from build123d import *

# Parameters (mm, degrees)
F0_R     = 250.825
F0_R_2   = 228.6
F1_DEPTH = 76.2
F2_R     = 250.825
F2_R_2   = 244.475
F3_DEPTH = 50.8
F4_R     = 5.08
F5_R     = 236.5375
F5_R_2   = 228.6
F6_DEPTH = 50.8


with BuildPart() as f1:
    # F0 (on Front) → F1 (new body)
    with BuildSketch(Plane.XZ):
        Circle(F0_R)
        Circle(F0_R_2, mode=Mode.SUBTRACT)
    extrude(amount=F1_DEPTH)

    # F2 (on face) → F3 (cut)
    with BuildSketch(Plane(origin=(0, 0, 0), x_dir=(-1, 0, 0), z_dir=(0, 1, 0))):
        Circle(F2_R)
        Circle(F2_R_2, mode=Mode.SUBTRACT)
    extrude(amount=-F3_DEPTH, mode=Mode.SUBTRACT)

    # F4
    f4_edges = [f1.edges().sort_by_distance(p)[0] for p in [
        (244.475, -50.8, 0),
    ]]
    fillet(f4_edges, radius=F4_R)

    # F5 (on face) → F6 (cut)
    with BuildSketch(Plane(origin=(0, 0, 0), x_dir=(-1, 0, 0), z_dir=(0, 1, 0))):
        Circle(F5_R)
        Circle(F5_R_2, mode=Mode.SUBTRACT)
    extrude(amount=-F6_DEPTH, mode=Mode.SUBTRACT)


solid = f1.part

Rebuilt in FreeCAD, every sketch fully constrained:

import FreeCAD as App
import Part
import Sketcher
Q = App.Units.Quantity


def edges_at(feature, points):
    """Names of the edges that pass closest to the given points."""
    edges = feature.Shape.Edges
    near = lambda p: min(range(len(edges)), key=lambda i: edges[i].distToShape(Part.Vertex(*p))[0])
    return sorted({f"Edge{near(p) + 1}" for p in points})

doc = App.newDocument("Part")
body = doc.addObject("PartDesign::Body", "Body")

# Sketch on XZ plane
sketch1 = body.newObject("Sketcher::SketchObject", "Sketch")
sketch1.AttachmentSupport = (doc.getObject("XZ_Plane"), [""])
sketch1.MapMode = "FlatFace"
sketch1.addGeometry([
    Part.Circle(App.Vector(0, 0, 0), App.Vector(0, 0, 1), 251),
    Part.Circle(App.Vector(0, 0, 0), App.Vector(0, 0, 1), 229),
], False)
sketch1.addConstraint([
    Sketcher.Constraint("Coincident", 0, 3, -1, 1),
    Sketcher.Constraint("Coincident", 1, 3, -1, 1),
    Sketcher.Constraint("Diameter", 1, Q("18 in")),
    Sketcher.Constraint("Diameter", 0, Q("19.75 in")),
])
pad1 = body.newObject("PartDesign::Pad", "Pad")
pad1.Profile = sketch1
pad1.Length = Q("3 in")

# Sketch on XZ plane
sketch2 = body.newObject("Sketcher::SketchObject", "Sketch001")
sketch2.AttachmentSupport = (doc.getObject("XZ_Plane"), [""])
sketch2.MapMode = "FlatFace"
sketch2.addGeometry([
    Part.Circle(App.Vector(0, 0, 0), App.Vector(0, 0, 1), 251),
    Part.Circle(App.Vector(0, 0, 0), App.Vector(0, 0, 1), 244),
], False)
sketch2.addConstraint([
    Sketcher.Constraint("Coincident", 0, 3, -1, 1),
    Sketcher.Constraint("Coincident", 1, 3, -1, 1),
    Sketcher.Constraint("Diameter", 0, Q("19.75 in")),
    Sketcher.Constraint("Diameter", 1, Q("19.25 in")),
])
pocket1 = body.newObject("PartDesign::Pocket", "Pocket")
pocket1.Profile = sketch2
pocket1.Length = Q("2 in")
pocket1.Reversed = True
doc.recompute()

fillet = body.newObject("PartDesign::Fillet", "Fillet")
fillet.Base = (pocket1, edges_at(pocket1, [(244.475, -50.8, 0)]))
fillet.Radius = Q("0.2 in")

# Sketch on XZ plane
sketch3 = body.newObject("Sketcher::SketchObject", "Sketch002")
sketch3.AttachmentSupport = (doc.getObject("XZ_Plane"), [""])
sketch3.MapMode = "FlatFace"
sketch3.addGeometry([
    Part.Circle(App.Vector(0, 0, 0), App.Vector(0, 0, 1), 237),
    Part.Circle(App.Vector(0, 0, 0), App.Vector(0, 0, 1), 229),
], False)
sketch3.addConstraint([
    Sketcher.Constraint("Coincident", 0, 3, -1, 1),
    Sketcher.Constraint("Coincident", 1, 3, -1, 1),
    Sketcher.Constraint("Diameter", 1, Q("18 in")),
    Sketcher.Constraint("Diameter", 0, Q("18.625 in")),
])
pocket2 = body.newObject("PartDesign::Pocket", "Pocket001")
pocket2.Profile = sketch3
pocket2.Length = Q("2 in")
pocket2.Reversed = True

doc.recompute()
